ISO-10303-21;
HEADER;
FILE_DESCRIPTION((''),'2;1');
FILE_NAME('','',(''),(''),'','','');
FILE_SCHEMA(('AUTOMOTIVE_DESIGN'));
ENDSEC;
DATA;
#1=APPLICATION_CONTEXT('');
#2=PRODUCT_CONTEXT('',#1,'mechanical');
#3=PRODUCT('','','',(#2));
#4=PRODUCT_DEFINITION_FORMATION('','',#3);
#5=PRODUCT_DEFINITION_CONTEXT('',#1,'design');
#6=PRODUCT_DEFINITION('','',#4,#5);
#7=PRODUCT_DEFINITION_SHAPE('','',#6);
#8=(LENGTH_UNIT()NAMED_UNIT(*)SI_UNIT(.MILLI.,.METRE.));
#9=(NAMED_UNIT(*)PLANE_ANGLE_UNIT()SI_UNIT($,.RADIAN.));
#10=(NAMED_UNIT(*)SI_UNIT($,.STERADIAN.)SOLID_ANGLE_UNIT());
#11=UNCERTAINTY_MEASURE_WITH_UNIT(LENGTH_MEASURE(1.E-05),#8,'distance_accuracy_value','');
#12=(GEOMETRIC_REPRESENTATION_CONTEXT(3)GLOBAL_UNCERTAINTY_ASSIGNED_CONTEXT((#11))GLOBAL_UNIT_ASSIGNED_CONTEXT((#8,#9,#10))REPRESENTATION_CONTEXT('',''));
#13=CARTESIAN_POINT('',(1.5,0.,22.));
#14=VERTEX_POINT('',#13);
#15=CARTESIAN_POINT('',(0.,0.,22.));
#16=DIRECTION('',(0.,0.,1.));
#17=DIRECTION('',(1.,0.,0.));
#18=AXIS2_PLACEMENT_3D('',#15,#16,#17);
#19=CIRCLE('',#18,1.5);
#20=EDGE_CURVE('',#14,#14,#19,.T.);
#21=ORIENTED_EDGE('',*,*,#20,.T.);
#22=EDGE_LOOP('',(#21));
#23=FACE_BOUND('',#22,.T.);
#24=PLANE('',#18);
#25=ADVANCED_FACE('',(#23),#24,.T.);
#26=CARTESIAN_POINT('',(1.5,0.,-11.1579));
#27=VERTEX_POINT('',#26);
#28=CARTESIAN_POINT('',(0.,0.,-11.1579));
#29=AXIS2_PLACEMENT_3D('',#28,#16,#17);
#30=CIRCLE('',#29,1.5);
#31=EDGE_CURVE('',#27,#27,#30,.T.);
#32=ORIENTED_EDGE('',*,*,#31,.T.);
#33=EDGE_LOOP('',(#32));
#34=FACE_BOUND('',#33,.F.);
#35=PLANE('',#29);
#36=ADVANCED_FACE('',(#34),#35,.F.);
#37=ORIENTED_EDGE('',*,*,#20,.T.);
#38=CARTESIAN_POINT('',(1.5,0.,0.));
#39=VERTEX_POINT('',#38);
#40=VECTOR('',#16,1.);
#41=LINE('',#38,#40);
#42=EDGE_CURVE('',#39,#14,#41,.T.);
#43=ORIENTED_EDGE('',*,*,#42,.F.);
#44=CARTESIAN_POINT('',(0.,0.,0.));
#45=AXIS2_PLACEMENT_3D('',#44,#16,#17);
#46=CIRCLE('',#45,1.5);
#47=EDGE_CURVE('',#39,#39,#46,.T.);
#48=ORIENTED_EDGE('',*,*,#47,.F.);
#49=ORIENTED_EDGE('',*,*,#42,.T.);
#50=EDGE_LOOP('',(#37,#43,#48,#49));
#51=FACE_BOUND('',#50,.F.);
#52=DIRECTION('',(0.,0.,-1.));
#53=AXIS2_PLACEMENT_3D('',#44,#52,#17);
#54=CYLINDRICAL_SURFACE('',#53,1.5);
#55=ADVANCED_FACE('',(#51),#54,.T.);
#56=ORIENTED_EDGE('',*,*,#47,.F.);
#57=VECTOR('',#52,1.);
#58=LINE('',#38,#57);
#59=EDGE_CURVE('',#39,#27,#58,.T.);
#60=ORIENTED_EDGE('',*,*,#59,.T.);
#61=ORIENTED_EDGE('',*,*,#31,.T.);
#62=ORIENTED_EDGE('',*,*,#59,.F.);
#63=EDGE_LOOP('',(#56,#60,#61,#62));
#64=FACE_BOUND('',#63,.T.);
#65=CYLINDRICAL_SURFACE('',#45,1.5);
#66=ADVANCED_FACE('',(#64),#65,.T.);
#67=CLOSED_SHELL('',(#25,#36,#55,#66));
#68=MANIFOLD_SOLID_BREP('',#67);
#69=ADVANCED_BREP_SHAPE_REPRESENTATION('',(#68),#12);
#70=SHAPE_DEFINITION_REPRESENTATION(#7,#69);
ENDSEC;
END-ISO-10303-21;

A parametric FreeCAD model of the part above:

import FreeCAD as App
import Part
import Sketcher

V = App.Vector

doc = App.newDocument("Part")
body = doc.addObject("PartDesign::Body", "Body")

sketch1 = body.newObject("Sketcher::SketchObject", "Sketch")
sketch1.AttachmentSupport = (doc.getObject("XY_Plane"), [""])
sketch1.MapMode = "FlatFace"
sketch1.addGeometry(Part.Circle(V(0, 0, 0), V(0, 0, 1), 1.5), False)
sketch1.addConstraint([
    Sketcher.Constraint("Coincident", 0, 3, -1, 1),
    Sketcher.Constraint("Diameter", 0, 3.0),
])
pad1 = body.newObject("PartDesign::Pad", "Pad")
pad1.Profile = sketch1
pad1.Length = 22

sketch2 = body.newObject("Sketcher::SketchObject", "Sketch001")
sketch2.AttachmentSupport = (doc.getObject("XY_Plane"), [""])
sketch2.MapMode = "FlatFace"
sketch2.addGeometry(Part.Circle(V(0, 0, 0), V(0, 0, 1), 1.5), False)
sketch2.addConstraint([
    Sketcher.Constraint("Coincident", 0, 3, -1, 1),
    Sketcher.Constraint("Diameter", 0, 3.0),
])
pad2 = body.newObject("PartDesign::Pad", "Pad001")
pad2.Profile = sketch2
pad2.Length = 11.1579
pad2.Reversed = True

doc.recompute()
